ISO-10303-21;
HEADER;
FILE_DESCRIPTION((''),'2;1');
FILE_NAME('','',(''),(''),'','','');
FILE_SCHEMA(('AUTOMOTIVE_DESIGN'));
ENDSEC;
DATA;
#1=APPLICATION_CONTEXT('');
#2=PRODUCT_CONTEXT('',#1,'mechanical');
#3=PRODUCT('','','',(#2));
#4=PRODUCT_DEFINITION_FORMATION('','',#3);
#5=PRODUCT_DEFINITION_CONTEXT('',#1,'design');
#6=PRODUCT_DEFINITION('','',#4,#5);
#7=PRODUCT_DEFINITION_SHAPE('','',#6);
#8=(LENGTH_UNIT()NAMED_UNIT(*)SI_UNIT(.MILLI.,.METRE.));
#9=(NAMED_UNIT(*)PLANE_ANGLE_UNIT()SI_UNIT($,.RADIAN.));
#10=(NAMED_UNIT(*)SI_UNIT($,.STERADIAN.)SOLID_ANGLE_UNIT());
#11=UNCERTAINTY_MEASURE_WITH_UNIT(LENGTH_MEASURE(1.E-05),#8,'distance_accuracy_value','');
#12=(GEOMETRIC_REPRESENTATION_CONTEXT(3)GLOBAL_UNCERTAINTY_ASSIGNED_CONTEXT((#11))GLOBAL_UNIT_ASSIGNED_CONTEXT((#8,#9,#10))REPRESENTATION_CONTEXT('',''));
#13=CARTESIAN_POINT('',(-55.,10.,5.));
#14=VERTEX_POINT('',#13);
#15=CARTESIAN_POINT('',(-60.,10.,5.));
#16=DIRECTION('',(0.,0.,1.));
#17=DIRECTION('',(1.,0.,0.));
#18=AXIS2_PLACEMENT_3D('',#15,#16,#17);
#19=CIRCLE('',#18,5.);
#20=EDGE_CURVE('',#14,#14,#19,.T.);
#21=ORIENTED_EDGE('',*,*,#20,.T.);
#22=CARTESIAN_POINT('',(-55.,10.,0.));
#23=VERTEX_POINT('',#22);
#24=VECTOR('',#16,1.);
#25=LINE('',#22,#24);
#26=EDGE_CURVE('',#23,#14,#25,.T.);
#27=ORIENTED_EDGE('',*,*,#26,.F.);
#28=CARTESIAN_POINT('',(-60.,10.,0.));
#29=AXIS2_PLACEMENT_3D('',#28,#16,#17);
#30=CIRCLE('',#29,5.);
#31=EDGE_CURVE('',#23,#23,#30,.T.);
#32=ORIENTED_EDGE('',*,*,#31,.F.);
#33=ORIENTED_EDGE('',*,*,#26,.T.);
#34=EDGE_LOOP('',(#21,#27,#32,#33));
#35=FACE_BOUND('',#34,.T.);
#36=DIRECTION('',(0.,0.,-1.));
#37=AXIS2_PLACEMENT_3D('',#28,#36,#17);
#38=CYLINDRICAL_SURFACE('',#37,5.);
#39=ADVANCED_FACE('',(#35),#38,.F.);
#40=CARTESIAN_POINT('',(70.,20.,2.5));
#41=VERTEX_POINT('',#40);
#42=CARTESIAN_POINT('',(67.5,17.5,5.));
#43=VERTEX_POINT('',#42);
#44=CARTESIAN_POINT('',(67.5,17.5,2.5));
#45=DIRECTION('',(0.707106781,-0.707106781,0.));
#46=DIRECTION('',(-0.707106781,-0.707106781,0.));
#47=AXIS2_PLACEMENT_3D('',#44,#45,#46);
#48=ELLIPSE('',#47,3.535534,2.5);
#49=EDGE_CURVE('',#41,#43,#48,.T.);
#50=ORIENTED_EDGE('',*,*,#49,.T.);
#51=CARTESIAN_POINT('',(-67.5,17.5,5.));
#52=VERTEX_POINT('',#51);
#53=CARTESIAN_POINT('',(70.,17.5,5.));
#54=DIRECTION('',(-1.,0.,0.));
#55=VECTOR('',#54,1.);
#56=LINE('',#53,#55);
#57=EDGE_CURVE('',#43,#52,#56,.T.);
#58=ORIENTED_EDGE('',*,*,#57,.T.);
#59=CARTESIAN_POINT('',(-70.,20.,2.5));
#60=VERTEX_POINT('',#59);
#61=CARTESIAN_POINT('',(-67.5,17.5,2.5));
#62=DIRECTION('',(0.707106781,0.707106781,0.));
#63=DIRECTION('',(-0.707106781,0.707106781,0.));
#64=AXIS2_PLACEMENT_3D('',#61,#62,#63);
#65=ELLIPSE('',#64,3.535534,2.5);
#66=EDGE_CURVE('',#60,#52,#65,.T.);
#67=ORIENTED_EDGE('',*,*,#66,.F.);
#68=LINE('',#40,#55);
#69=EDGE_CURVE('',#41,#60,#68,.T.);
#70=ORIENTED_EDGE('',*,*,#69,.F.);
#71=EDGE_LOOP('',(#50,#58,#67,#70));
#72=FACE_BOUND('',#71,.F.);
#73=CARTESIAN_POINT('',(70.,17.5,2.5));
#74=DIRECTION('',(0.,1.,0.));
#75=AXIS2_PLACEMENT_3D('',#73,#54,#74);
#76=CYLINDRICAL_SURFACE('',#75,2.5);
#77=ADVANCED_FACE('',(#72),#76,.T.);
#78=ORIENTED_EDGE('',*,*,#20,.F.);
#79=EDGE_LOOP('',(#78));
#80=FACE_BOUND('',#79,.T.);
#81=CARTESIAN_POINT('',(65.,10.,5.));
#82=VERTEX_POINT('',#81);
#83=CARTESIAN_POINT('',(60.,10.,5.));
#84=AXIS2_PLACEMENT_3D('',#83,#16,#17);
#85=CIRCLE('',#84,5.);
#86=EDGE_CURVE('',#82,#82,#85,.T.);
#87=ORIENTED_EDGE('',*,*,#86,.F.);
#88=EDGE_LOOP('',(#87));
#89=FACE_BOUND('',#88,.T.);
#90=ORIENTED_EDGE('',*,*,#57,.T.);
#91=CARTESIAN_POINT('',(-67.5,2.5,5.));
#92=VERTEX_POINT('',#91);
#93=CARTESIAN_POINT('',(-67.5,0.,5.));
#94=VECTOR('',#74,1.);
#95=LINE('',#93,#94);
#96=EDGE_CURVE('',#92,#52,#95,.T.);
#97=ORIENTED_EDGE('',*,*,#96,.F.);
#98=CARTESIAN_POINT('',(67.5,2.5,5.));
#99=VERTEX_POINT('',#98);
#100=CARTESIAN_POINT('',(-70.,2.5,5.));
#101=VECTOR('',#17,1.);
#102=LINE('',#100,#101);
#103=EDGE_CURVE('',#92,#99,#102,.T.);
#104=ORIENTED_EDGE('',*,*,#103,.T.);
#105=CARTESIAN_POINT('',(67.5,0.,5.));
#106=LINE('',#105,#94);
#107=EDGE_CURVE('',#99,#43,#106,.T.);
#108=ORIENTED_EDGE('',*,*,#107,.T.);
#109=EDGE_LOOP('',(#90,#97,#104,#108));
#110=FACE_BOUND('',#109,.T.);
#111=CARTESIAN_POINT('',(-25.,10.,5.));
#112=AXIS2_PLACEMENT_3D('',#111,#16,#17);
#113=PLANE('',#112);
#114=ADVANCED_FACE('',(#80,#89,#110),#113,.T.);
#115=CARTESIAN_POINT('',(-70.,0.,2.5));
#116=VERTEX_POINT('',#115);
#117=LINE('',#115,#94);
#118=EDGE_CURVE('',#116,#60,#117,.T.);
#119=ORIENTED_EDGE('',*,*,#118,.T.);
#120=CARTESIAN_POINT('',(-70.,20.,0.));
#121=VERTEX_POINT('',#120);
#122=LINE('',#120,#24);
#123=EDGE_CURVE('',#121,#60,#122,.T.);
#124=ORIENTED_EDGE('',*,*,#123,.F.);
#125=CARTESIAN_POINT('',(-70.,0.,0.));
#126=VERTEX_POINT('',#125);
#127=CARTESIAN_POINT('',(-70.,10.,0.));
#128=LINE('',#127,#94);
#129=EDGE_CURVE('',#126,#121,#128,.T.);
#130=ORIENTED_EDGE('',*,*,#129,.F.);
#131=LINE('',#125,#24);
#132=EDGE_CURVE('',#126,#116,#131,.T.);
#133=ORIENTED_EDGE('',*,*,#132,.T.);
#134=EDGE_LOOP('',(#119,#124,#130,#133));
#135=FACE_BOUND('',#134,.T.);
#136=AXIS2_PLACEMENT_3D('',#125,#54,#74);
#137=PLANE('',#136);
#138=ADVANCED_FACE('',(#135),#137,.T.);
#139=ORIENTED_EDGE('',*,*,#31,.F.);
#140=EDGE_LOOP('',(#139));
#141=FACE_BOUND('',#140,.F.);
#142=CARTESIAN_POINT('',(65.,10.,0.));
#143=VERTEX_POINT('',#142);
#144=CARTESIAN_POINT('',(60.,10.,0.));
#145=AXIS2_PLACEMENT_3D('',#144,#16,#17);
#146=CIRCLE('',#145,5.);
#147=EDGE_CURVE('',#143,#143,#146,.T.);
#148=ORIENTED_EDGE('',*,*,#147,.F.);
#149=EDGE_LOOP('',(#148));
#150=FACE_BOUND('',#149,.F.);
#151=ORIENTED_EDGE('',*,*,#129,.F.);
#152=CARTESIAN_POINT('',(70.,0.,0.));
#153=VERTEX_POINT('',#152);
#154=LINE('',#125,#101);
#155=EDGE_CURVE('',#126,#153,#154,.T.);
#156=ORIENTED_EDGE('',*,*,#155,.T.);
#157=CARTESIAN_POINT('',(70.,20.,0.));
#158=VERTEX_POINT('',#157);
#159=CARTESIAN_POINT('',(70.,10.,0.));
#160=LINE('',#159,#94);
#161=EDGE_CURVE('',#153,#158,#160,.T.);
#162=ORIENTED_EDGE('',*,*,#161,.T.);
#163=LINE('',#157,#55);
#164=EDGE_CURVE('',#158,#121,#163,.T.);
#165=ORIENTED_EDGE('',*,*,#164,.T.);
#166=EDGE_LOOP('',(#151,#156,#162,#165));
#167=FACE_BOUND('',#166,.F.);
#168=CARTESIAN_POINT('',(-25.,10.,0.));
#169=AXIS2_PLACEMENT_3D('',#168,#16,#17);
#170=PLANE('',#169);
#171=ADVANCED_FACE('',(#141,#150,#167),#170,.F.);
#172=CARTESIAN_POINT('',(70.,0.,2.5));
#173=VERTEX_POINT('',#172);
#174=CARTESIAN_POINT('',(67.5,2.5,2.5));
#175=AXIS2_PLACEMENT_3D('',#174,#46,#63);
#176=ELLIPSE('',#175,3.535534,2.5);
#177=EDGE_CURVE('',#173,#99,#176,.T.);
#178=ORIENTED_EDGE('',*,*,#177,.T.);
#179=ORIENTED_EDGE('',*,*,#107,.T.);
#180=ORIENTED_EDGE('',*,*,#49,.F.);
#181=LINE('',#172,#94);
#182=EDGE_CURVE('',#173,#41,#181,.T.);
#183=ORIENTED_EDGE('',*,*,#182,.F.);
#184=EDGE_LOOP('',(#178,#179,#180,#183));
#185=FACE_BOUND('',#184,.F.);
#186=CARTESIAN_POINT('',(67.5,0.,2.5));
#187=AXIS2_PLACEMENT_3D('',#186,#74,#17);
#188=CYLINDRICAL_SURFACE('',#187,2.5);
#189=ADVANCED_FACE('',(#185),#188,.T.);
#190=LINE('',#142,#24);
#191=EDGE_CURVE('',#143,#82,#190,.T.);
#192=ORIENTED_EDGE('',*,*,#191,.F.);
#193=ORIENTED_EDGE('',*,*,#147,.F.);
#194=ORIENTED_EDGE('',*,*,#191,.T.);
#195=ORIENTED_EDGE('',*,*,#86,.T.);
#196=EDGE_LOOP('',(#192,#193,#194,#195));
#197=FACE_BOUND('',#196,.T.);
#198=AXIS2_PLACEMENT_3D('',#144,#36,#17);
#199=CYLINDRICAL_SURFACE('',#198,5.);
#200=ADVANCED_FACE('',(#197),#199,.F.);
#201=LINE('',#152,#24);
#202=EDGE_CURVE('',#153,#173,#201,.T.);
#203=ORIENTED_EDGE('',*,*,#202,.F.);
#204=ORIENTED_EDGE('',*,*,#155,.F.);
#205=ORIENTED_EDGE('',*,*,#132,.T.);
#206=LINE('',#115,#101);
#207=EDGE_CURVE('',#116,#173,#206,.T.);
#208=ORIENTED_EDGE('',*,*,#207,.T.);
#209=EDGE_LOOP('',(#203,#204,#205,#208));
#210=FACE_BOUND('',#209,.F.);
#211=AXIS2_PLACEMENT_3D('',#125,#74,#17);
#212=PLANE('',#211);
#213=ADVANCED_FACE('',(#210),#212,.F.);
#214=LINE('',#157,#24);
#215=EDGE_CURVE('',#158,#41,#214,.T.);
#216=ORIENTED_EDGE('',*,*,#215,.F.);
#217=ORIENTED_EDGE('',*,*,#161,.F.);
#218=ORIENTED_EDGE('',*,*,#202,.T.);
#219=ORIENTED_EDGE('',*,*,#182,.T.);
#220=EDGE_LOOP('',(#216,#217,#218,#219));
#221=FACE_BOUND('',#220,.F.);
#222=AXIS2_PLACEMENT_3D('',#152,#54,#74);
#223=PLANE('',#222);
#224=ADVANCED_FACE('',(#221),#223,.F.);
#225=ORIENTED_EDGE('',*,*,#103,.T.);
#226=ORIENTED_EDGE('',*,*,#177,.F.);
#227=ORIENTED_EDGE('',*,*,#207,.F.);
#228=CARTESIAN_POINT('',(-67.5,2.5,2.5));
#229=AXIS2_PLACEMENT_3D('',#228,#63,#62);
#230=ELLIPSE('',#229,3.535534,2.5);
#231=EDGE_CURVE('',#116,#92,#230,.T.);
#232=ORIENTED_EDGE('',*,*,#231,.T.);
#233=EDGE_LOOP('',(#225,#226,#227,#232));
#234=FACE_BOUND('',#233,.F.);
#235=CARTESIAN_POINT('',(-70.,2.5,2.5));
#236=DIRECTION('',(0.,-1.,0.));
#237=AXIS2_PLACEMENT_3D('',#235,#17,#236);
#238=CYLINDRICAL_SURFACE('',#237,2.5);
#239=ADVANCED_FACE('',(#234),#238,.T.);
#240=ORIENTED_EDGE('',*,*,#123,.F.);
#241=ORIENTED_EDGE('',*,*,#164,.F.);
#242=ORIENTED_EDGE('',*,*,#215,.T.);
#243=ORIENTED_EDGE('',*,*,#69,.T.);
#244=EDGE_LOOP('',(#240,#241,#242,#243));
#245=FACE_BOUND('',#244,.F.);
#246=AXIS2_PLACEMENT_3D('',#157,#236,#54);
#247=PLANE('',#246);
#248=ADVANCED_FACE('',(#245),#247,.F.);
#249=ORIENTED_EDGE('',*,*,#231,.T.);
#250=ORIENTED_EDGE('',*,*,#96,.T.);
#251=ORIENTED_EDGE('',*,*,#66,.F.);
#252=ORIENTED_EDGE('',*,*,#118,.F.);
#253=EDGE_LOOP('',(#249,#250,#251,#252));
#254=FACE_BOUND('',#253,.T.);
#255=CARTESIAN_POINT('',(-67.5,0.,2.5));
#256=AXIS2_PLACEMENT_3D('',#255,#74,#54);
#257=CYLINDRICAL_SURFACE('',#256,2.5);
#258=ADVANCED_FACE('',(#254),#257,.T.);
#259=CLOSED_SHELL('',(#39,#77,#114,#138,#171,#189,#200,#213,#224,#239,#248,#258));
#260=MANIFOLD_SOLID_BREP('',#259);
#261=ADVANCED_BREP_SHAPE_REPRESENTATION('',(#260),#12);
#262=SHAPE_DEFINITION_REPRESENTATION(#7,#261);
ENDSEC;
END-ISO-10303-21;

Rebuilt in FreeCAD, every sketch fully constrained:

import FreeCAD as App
import Part
import Sketcher
Q = App.Units.Quantity


def edges_at(feature, points):
    """Names of the edges that pass closest to the given points."""
    edges = feature.Shape.Edges
    near = lambda p: min(range(len(edges)), key=lambda i: edges[i].distToShape(Part.Vertex(*p))[0])
    return sorted({f"Edge{near(p) + 1}" for p in points})


def add_polygon(sketch, points):
    """Adds a closed chain of lines whose ends are joined by coincident constraints."""
    first, n = sketch.GeometryCount, len(points)
    for a, b in zip(points, points[1:] + points[:1]):
        sketch.addGeometry(Part.LineSegment(App.Vector(*a, 0), App.Vector(*b, 0)), False)
    for i in range(n):
        sketch.addConstraint(Sketcher.Constraint("Coincident", first + i, 2, first + (i + 1) % n, 1))

doc = App.newDocument("Part")
body = doc.addObject("PartDesign::Body", "Body")

sketch1 = body.newObject("Sketcher::SketchObject", "Sketch")
sketch1.AttachmentSupport = (doc.getObject("XY_Plane"), [""])
sketch1.MapMode = "FlatFace"
add_polygon(sketch1, [(70, 0), (70, 20), (-70, 20), (-70, 0)])
sketch1.addGeometry(Part.Circle(App.Vector(-60, 10, 0), App.Vector(0, 0, 1), 5), False)
sketch1.addGeometry(Part.Circle(App.Vector(60, 10, 0), App.Vector(0, 0, 1), 5), False)
sketch1.addConstraint([
    Sketcher.Constraint("Vertical", 0),
    Sketcher.Constraint("Horizontal", 1),
    Sketcher.Constraint("Vertical", 2),
    Sketcher.Constraint("Horizontal", 3),
    Sketcher.Constraint("Equal", 4, 5),
    Sketcher.Constraint("Symmetric", 2, 2, 3, 2, -1, 1),
    Sketcher.Constraint("Symmetric", 4, 3, 5, 3, -2),
    Sketcher.Constraint("Diameter", 4, Q("10 mm")),
    Sketcher.Constraint("DistanceX", 1, 2, 1, 1, Q("140 mm")),
    Sketcher.Constraint("DistanceY", 0, 1, 0, 2, Q("20 mm")),
    Sketcher.Constraint("DistanceX", 4, 3, -1, 1, Q("60 mm")),
    Sketcher.Constraint("DistanceY", -1, 1, 4, 3, Q("10 mm")),
])
pad1 = body.newObject("PartDesign::Pad", "Pad")
pad1.Profile = sketch1
pad1.Length = 5
doc.recompute()

fillet = body.newObject("PartDesign::Fillet", "Fillet")
fillet.Base = (pad1, edges_at(pad1, [
    (0, 20, 5),
    (70, 10, 5),
    (0, 0, 5),
    (-70, 10, 5),
]))
fillet.Radius = 2.5

doc.recompute()
